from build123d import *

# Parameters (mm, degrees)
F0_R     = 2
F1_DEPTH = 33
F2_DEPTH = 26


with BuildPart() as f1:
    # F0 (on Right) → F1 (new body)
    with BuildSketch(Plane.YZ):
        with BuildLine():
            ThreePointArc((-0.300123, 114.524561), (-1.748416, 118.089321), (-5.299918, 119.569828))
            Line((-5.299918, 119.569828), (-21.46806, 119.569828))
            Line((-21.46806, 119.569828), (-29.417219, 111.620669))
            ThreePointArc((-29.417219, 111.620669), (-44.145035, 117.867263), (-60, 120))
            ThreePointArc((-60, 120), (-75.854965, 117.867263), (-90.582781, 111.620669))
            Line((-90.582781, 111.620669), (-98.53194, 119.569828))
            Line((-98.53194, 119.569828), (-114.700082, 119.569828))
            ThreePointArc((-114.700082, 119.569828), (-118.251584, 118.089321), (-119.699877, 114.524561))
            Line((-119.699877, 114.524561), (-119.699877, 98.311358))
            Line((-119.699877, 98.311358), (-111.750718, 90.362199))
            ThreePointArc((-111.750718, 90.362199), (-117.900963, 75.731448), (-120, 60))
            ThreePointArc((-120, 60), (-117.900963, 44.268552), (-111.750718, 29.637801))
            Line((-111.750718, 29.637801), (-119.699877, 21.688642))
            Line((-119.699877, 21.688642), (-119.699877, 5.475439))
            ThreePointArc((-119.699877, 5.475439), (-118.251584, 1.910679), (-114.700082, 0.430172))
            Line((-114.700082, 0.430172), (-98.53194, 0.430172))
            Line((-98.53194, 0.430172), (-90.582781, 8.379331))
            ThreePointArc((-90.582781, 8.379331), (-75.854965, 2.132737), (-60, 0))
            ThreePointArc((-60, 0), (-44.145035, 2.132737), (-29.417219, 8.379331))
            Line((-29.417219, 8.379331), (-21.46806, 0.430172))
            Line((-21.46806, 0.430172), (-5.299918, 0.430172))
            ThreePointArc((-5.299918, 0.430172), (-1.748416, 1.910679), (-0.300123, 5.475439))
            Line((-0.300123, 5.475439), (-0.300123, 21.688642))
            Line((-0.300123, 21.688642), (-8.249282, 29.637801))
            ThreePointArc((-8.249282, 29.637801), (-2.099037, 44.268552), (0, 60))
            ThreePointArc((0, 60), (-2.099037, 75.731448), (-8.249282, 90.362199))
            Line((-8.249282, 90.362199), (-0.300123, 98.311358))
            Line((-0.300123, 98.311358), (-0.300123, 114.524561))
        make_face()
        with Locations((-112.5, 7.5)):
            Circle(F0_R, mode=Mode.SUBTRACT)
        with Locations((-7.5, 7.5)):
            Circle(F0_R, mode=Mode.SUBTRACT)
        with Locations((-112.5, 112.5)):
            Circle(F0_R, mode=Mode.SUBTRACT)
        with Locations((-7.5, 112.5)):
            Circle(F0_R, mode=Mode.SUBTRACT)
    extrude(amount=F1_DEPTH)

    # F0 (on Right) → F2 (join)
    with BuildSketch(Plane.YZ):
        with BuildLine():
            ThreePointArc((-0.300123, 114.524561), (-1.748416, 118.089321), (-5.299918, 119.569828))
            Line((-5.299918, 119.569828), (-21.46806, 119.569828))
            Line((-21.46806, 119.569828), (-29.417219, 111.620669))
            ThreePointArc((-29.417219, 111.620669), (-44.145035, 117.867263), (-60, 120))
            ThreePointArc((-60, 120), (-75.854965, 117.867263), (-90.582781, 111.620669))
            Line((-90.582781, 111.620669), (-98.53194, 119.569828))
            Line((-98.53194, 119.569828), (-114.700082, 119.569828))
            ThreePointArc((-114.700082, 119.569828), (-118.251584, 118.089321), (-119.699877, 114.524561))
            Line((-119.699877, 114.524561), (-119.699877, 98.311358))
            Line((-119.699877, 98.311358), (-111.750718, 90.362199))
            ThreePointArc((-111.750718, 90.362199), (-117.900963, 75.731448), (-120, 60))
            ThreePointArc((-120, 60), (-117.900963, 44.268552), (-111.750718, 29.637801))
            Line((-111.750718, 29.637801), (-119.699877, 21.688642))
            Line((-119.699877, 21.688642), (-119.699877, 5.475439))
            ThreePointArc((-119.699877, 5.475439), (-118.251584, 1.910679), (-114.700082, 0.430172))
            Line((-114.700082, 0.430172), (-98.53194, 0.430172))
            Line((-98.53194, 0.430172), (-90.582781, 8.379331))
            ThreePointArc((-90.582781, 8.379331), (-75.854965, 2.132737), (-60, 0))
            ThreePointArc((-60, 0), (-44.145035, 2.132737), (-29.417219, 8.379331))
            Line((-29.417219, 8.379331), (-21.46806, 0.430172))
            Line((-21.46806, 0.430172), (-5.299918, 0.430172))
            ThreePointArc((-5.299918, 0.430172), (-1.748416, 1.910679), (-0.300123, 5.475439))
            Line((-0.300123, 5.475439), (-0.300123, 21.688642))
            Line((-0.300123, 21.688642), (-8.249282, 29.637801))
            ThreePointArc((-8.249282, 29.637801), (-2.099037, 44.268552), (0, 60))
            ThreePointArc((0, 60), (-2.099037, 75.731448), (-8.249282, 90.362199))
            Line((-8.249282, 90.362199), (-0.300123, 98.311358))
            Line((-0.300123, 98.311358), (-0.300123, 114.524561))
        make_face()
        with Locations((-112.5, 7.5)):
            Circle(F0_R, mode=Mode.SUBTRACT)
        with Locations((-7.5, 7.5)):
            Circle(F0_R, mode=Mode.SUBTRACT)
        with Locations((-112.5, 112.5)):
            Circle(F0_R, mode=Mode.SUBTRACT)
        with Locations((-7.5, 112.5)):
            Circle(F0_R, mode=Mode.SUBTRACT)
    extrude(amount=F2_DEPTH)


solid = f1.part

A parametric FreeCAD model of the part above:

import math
import FreeCAD as App
import Part
import Sketcher
from FreeCAD import Vector
Q = App.Units.Quantity

doc = App.newDocument("Part")
body = doc.addObject("PartDesign::Body", "Body")

# Sketch on YZ plane
sketch1 = body.newObject("Sketcher::SketchObject", "Sketch")
sketch1.AttachmentSupport = (doc.getObject("YZ_Plane"), [""])
sketch1.MapMode = "FlatFace"
sketch1.addGeometry([
    Part.ArcOfCircle(Part.Circle(Vector(-5.3, 114.6, 0), Vector(0, 0, 1), 5), math.radians(-1), math.radians(90)),  # 0
    Part.LineSegment(Vector(-5.3, 119.6, 0), Vector(-21.5, 119.6, 0)),  # 1
    Part.LineSegment(Vector(-21.5, 119.6, 0), Vector(-29.4, 111.6, 0)),  # 2
    Part.ArcOfCircle(Part.Circle(Vector(-60, 60, 0), Vector(0, 0, 1), 60), math.radians(59), math.radians(90)),  # 3
    Part.ArcOfCircle(Part.Circle(Vector(-60, 60, 0), Vector(0, 0, 1), 60), math.radians(90), math.radians(121)),  # 4
    Part.LineSegment(Vector(-90.6, 111.6, 0), Vector(-98.5, 119.6, 0)),  # 5
    Part.LineSegment(Vector(-98.5, 119.6, 0), Vector(-114.7, 119.6, 0)),  # 6
    Part.ArcOfCircle(Part.Circle(Vector(-114.7, 114.6, 0), Vector(0, 0, 1), 5), math.radians(90), math.radians(181)),  # 7
    Part.LineSegment(Vector(-119.7, 114.5, 0), Vector(-119.7, 98.3, 0)),  # 8
    Part.LineSegment(Vector(-119.7, 98.3, 0), Vector(-111.8, 90.4, 0)),  # 9
    Part.ArcOfCircle(Part.Circle(Vector(-60, 60, 0), Vector(0, 0, 1), 60), math.radians(150), math.radians(180)),  # 10
    Part.ArcOfCircle(Part.Circle(Vector(-60, 60, 0), Vector(0, 0, 1), 60), math.radians(-180), math.radians(-150)),  # 11
    Part.LineSegment(Vector(-111.8, 29.6, 0), Vector(-119.7, 21.7, 0)),  # 12
    Part.LineSegment(Vector(-119.7, 21.7, 0), Vector(-119.7, 5.5, 0)),  # 13
    Part.ArcOfCircle(Part.Circle(Vector(-114.7, 5.4, 0), Vector(0, 0, 1), 5), math.radians(179), math.radians(270)),  # 14
    Part.LineSegment(Vector(-114.7, 0.4, 0), Vector(-98.5, 0.4, 0)),  # 15
    Part.LineSegment(Vector(-98.5, 0.4, 0), Vector(-90.6, 8.4, 0)),  # 16
    Part.ArcOfCircle(Part.Circle(Vector(-60, 60, 0), Vector(0, 0, 1), 60), math.radians(-121), math.radians(-90)),  # 17
    Part.ArcOfCircle(Part.Circle(Vector(-60, 60, 0), Vector(0, 0, 1), 60), math.radians(-90), math.radians(-59)),  # 18
    Part.LineSegment(Vector(-29.4, 8.4, 0), Vector(-21.5, 0.4, 0)),  # 19
    Part.LineSegment(Vector(-21.5, 0.4, 0), Vector(-5.3, 0.4, 0)),  # 20
    Part.ArcOfCircle(Part.Circle(Vector(-5.3, 5.4, 0), Vector(0, 0, 1), 5), math.radians(-90), math.radians(1)),  # 21
    Part.LineSegment(Vector(-0.3, 5.5, 0), Vector(-0.3, 21.7, 0)),  # 22
    Part.LineSegment(Vector(-0.3, 21.7, 0), Vector(-8.2, 29.6, 0)),  # 23
    Part.ArcOfCircle(Part.Circle(Vector(-60, 60, 0), Vector(0, 0, 1), 60), math.radians(-30), math.radians(0)),  # 24
    Part.ArcOfCircle(Part.Circle(Vector(-60, 60, 0), Vector(0, 0, 1), 60), math.radians(0), math.radians(30)),  # 25
    Part.LineSegment(Vector(-8.2, 90.4, 0), Vector(-0.3, 98.3, 0)),  # 26
    Part.LineSegment(Vector(-0.3, 98.3, 0), Vector(-0.3, 114.5, 0)),  # 27
    Part.Circle(Vector(-112.5, 7.5, 0), Vector(0, 0, 1), 2),  # 28
    Part.Circle(Vector(-7.5, 7.5, 0), Vector(0, 0, 1), 2),  # 29
    Part.Circle(Vector(-112.5, 112.5, 0), Vector(0, 0, 1), 2),  # 30
    Part.Circle(Vector(-7.5, 112.5, 0), Vector(0, 0, 1), 2),  # 31
], False)
sketch1.addConstraint([
    Sketcher.Constraint("Tangent", 0, 2, 1, 1),
    Sketcher.Constraint("Coincident", 1, 2, 2, 1),
    Sketcher.Constraint("Coincident", 2, 2, 3, 1),
    Sketcher.Constraint("Tangent", 3, 2, 4, 1),
    Sketcher.Constraint("Coincident", 4, 2, 5, 1),
    Sketcher.Constraint("Coincident", 5, 2, 6, 1),
    Sketcher.Constraint("Tangent", 6, 2, 7, 1),
    Sketcher.Constraint("Coincident", 7, 2, 8, 1),
    Sketcher.Constraint("Coincident", 8, 2, 9, 1),
    Sketcher.Constraint("Coincident", 9, 2, 10, 1),
    Sketcher.Constraint("Tangent", 10, 2, 11, 1),
    Sketcher.Constraint("Coincident", 11, 2, 12, 1),
    Sketcher.Constraint("Coincident", 12, 2, 13, 1),
    Sketcher.Constraint("Coincident", 13, 2, 14, 1),
    Sketcher.Constraint("Tangent", 14, 2, 15, 1),
    Sketcher.Constraint("Coincident", 15, 2, 16, 1),
    Sketcher.Constraint("Coincident", 16, 2, 17, 1),
    Sketcher.Constraint("Tangent", 17, 2, 18, 1),
    Sketcher.Constraint("Coincident", 18, 2, 19, 1),
    Sketcher.Constraint("Coincident", 19, 2, 20, 1),
    Sketcher.Constraint("Tangent", 20, 2, 21, 1),
    Sketcher.Constraint("Coincident", 21, 2, 22, 1),
    Sketcher.Constraint("Coincident", 22, 2, 23, 1),
    Sketcher.Constraint("Coincident", 23, 2, 24, 1),
    Sketcher.Constraint("Tangent", 24, 2, 25, 1),
    Sketcher.Constraint("Coincident", 25, 2, 26, 1),
    Sketcher.Constraint("Coincident", 26, 2, 27, 1),
    Sketcher.Constraint("Coincident", 27, 2, 0, 1),
    Sketcher.Constraint("Horizontal", 1),
    Sketcher.Constraint("Horizontal", 6),
    Sketcher.Constraint("Vertical", 8),
    Sketcher.Constraint("Vertical", 13),
    Sketcher.Constraint("Horizontal", 15),
    Sketcher.Constraint("Horizontal", 20),
    Sketcher.Constraint("Vertical", 22),
    Sketcher.Constraint("Vertical", 27),
    Sketcher.Constraint("Coincident", 24, 3, 10, 3),
    Sketcher.Constraint("Equal", 3, 4),
    Sketcher.Constraint("Equal", 0, 7),
    Sketcher.Constraint("Equal", 10, 11),
    Sketcher.Constraint("Equal", 7, 14),
    Sketcher.Constraint("Equal", 4, 17),
    Sketcher.Constraint("Equal", 17, 18),
    Sketcher.Constraint("Equal", 14, 21),
    Sketcher.Constraint("Equal", 11, 24),
    Sketcher.Constraint("Equal", 24, 25),
    Sketcher.Constraint("Equal", 28, 29),
    Sketcher.Constraint("Equal", 29, 30),
    Sketcher.Constraint("Equal", 30, 31),
    Sketcher.Constraint("PointOnObject", 17, 2, -1),
    Sketcher.Constraint("PointOnObject", 24, 2, -2),
    Sketcher.Constraint("Perpendicular", 2, 5),
    Sketcher.Constraint("Parallel", 5, 9),
    Sketcher.Constraint("Perpendicular", 9, 12),
    Sketcher.Constraint("Parallel", 12, 16),
    Sketcher.Constraint("Perpendicular", 16, 19),
    Sketcher.Constraint("Parallel", 19, 23),
    Sketcher.Constraint("Perpendicular", 23, 26),
    Sketcher.Constraint("Horizontal", 0, 3, 7, 3),
    Sketcher.Constraint("Horizontal", 14, 3, 21, 3),
    Sketcher.Constraint("Horizontal", 28, 3, 29, 3),
    Sketcher.Constraint("Horizontal", 30, 3, 31, 3),
    Sketcher.Constraint("Horizontal", 2, 2, 4, 2),
    Sketcher.Constraint("Horizontal", 25, 3, 10, 2),
    Sketcher.Constraint("Horizontal", 16, 2, 18, 2),
    Sketcher.Constraint("Horizontal", 13, 2, 21, 2),
    Sketcher.Constraint("Horizontal", 12, 2, 22, 2),
    Sketcher.Constraint("Horizontal", 11, 2, 23, 2),
    Sketcher.Constraint("Horizontal", 10, 2, 24, 2),
    Sketcher.Constraint("Horizontal", 9, 2, 25, 2),
    Sketcher.Constraint("Horizontal", 8, 2, 26, 2),
    Sketcher.Constraint("Horizontal", 7, 2, 27, 2),
    Sketcher.Constraint("Vertical", 7, 3, 14, 3),
    Sketcher.Constraint("Vertical", 4, 3, 17, 3),
    Sketcher.Constraint("Vertical", 0, 3, 21, 3),
    Sketcher.Constraint("Vertical", 28, 3, 30, 3),
    Sketcher.Constraint("Vertical", 29, 3, 31, 3),
    Sketcher.Constraint("Vertical", 25, 3, 3, 2),
    Sketcher.Constraint("Vertical", 9, 2, 11, 2),
    Sketcher.Constraint("Vertical", 8, 2, 12, 2),
    Sketcher.Constraint("Vertical", 5, 2, 15, 2),
    Sketcher.Constraint("Vertical", 4, 2, 16, 2),
    Sketcher.Constraint("Vertical", 3, 2, 17, 2),
    Sketcher.Constraint("Equal", 1, 6),
    Sketcher.Constraint("Equal", 8, 13),
    Sketcher.Constraint("Equal", 5, 9),
    Sketcher.Constraint("Diameter", 28, Q("4 mm")),
    Sketcher.Constraint("Radius", 0, Q("5 mm")),
    Sketcher.Constraint("Radius", 10, Q("59.999999 mm")),
    Sketcher.Constraint("DistanceY", -1, 1, 10, 3, Q("59.999999 mm")),
    Sketcher.Constraint("DistanceX", 28, 3, -1, 1, Q("112.5 mm")),
    Sketcher.Constraint("DistanceY", -1, 1, 28, 3, Q("7.5 mm")),
    Sketcher.Constraint("DistanceX", 29, 3, -1, 1, Q("7.5 mm")),
    Sketcher.Constraint("DistanceY", -1, 1, 30, 3, Q("112.5 mm")),
    Sketcher.Constraint("Radius", 3, Q("59.999986 mm")),
    Sketcher.Constraint("DistanceX", 6, 2, 6, 1, Q("16.168142 mm")),
    Sketcher.Constraint("DistanceY", -1, 1, 9, 2, Q("90.362199 mm")),
    Sketcher.Constraint("DistanceX", 2, 2, 0, 3, Q("24.1173 mm")),
    Sketcher.Constraint("DistanceY", 8, 2, 8, 1, Q("16.213203 mm")),
])
pad1 = body.newObject("PartDesign::Pad", "Pad")
pad1.Profile = sketch1
pad1.Length = 33

# Sketch on YZ plane
sketch2 = body.newObject("Sketcher::SketchObject", "Sketch001")
sketch2.AttachmentSupport = (doc.getObject("YZ_Plane"), [""])
sketch2.MapMode = "FlatFace"
sketch2.addGeometry([
    Part.ArcOfCircle(Part.Circle(Vector(-5.3, 114.6, 0), Vector(0, 0, 1), 5), math.radians(-1), math.radians(90)),  # 0
    Part.LineSegment(Vector(-5.3, 119.6, 0), Vector(-21.5, 119.6, 0)),  # 1
    Part.LineSegment(Vector(-21.5, 119.6, 0), Vector(-29.4, 111.6, 0)),  # 2
    Part.ArcOfCircle(Part.Circle(Vector(-60, 60, 0), Vector(0, 0, 1), 60), math.radians(59), math.radians(90)),  # 3
    Part.ArcOfCircle(Part.Circle(Vector(-60, 60, 0), Vector(0, 0, 1), 60), math.radians(90), math.radians(121)),  # 4
    Part.LineSegment(Vector(-90.6, 111.6, 0), Vector(-98.5, 119.6, 0)),  # 5
    Part.LineSegment(Vector(-98.5, 119.6, 0), Vector(-114.7, 119.6, 0)),  # 6
    Part.ArcOfCircle(Part.Circle(Vector(-114.7, 114.6, 0), Vector(0, 0, 1), 5), math.radians(90), math.radians(181)),  # 7
    Part.LineSegment(Vector(-119.7, 114.5, 0), Vector(-119.7, 98.3, 0)),  # 8
    Part.LineSegment(Vector(-119.7, 98.3, 0), Vector(-111.8, 90.4, 0)),  # 9
    Part.ArcOfCircle(Part.Circle(Vector(-60, 60, 0), Vector(0, 0, 1), 60), math.radians(150), math.radians(180)),  # 10
    Part.ArcOfCircle(Part.Circle(Vector(-60, 60, 0), Vector(0, 0, 1), 60), math.radians(-180), math.radians(-150)),  # 11
    Part.LineSegment(Vector(-111.8, 29.6, 0), Vector(-119.7, 21.7, 0)),  # 12
    Part.LineSegment(Vector(-119.7, 21.7, 0), Vector(-119.7, 5.5, 0)),  # 13
    Part.ArcOfCircle(Part.Circle(Vector(-114.7, 5.4, 0), Vector(0, 0, 1), 5), math.radians(179), math.radians(270)),  # 14
    Part.LineSegment(Vector(-114.7, 0.4, 0), Vector(-98.5, 0.4, 0)),  # 15
    Part.LineSegment(Vector(-98.5, 0.4, 0), Vector(-90.6, 8.4, 0)),  # 16
    Part.ArcOfCircle(Part.Circle(Vector(-60, 60, 0), Vector(0, 0, 1), 60), math.radians(-121), math.radians(-90)),  # 17
    Part.ArcOfCircle(Part.Circle(Vector(-60, 60, 0), Vector(0, 0, 1), 60), math.radians(-90), math.radians(-59)),  # 18
    Part.LineSegment(Vector(-29.4, 8.4, 0), Vector(-21.5, 0.4, 0)),  # 19
    Part.LineSegment(Vector(-21.5, 0.4, 0), Vector(-5.3, 0.4, 0)),  # 20
    Part.ArcOfCircle(Part.Circle(Vector(-5.3, 5.4, 0), Vector(0, 0, 1), 5), math.radians(-90), math.radians(1)),  # 21
    Part.LineSegment(Vector(-0.3, 5.5, 0), Vector(-0.3, 21.7, 0)),  # 22
    Part.LineSegment(Vector(-0.3, 21.7, 0), Vector(-8.2, 29.6, 0)),  # 23
    Part.ArcOfCircle(Part.Circle(Vector(-60, 60, 0), Vector(0, 0, 1), 60), math.radians(-30), math.radians(0)),  # 24
    Part.ArcOfCircle(Part.Circle(Vector(-60, 60, 0), Vector(0, 0, 1), 60), math.radians(0), math.radians(30)),  # 25
    Part.LineSegment(Vector(-8.2, 90.4, 0), Vector(-0.3, 98.3, 0)),  # 26
    Part.LineSegment(Vector(-0.3, 98.3, 0), Vector(-0.3, 114.5, 0)),  # 27
    Part.Circle(Vector(-112.5, 7.5, 0), Vector(0, 0, 1), 2),  # 28
    Part.Circle(Vector(-7.5, 7.5, 0), Vector(0, 0, 1), 2),  # 29
    Part.Circle(Vector(-112.5, 112.5, 0), Vector(0, 0, 1), 2),  # 30
    Part.Circle(Vector(-7.5, 112.5, 0), Vector(0, 0, 1), 2),  # 31
], False)
sketch2.addConstraint([
    Sketcher.Constraint("Tangent", 0, 2, 1, 1),
    Sketcher.Constraint("Coincident", 1, 2, 2, 1),
    Sketcher.Constraint("Coincident", 2, 2, 3, 1),
    Sketcher.Constraint("Tangent", 3, 2, 4, 1),
    Sketcher.Constraint("Coincident", 4, 2, 5, 1),
    Sketcher.Constraint("Coincident", 5, 2, 6, 1),
    Sketcher.Constraint("Tangent", 6, 2, 7, 1),
    Sketcher.Constraint("Coincident", 7, 2, 8, 1),
    Sketcher.Constraint("Coincident", 8, 2, 9, 1),
    Sketcher.Constraint("Coincident", 9, 2, 10, 1),
    Sketcher.Constraint("Tangent", 10, 2, 11, 1),
    Sketcher.Constraint("Coincident", 11, 2, 12, 1),
    Sketcher.Constraint("Coincident", 12, 2, 13, 1),
    Sketcher.Constraint("Coincident", 13, 2, 14, 1),
    Sketcher.Constraint("Tangent", 14, 2, 15, 1),
    Sketcher.Constraint("Coincident", 15, 2, 16, 1),
    Sketcher.Constraint("Coincident", 16, 2, 17, 1),
    Sketcher.Constraint("Tangent", 17, 2, 18, 1),
    Sketcher.Constraint("Coincident", 18, 2, 19, 1),
    Sketcher.Constraint("Coincident", 19, 2, 20, 1),
    Sketcher.Constraint("Tangent", 20, 2, 21, 1),
    Sketcher.Constraint("Coincident", 21, 2, 22, 1),
    Sketcher.Constraint("Coincident", 22, 2, 23, 1),
    Sketcher.Constraint("Coincident", 23, 2, 24, 1),
    Sketcher.Constraint("Tangent", 24, 2, 25, 1),
    Sketcher.Constraint("Coincident", 25, 2, 26, 1),
    Sketcher.Constraint("Coincident", 26, 2, 27, 1),
    Sketcher.Constraint("Coincident", 27, 2, 0, 1),
    Sketcher.Constraint("Horizontal", 1),
    Sketcher.Constraint("Horizontal", 6),
    Sketcher.Constraint("Vertical", 8),
    Sketcher.Constraint("Vertical", 13),
    Sketcher.Constraint("Horizontal", 15),
    Sketcher.Constraint("Horizontal", 20),
    Sketcher.Constraint("Vertical", 22),
    Sketcher.Constraint("Vertical", 27),
    Sketcher.Constraint("Coincident", 24, 3, 10, 3),
    Sketcher.Constraint("Equal", 3, 4),
    Sketcher.Constraint("Equal", 0, 7),
    Sketcher.Constraint("Equal", 10, 11),
    Sketcher.Constraint("Equal", 7, 14),
    Sketcher.Constraint("Equal", 4, 17),
    Sketcher.Constraint("Equal", 17, 18),
    Sketcher.Constraint("Equal", 14, 21),
    Sketcher.Constraint("Equal", 11, 24),
    Sketcher.Constraint("Equal", 24, 25),
    Sketcher.Constraint("Equal", 28, 29),
    Sketcher.Constraint("Equal", 29, 30),
    Sketcher.Constraint("Equal", 30, 31),
    Sketcher.Constraint("PointOnObject", 17, 2, -1),
    Sketcher.Constraint("PointOnObject", 24, 2, -2),
    Sketcher.Constraint("Perpendicular", 2, 5),
    Sketcher.Constraint("Parallel", 5, 9),
    Sketcher.Constraint("Perpendicular", 9, 12),
    Sketcher.Constraint("Parallel", 12, 16),
    Sketcher.Constraint("Perpendicular", 16, 19),
    Sketcher.Constraint("Parallel", 19, 23),
    Sketcher.Constraint("Perpendicular", 23, 26),
    Sketcher.Constraint("Horizontal", 0, 3, 7, 3),
    Sketcher.Constraint("Horizontal", 14, 3, 21, 3),
    Sketcher.Constraint("Horizontal", 28, 3, 29, 3),
    Sketcher.Constraint("Horizontal", 30, 3, 31, 3),
    Sketcher.Constraint("Horizontal", 2, 2, 4, 2),
    Sketcher.Constraint("Horizontal", 25, 3, 10, 2),
    Sketcher.Constraint("Horizontal", 16, 2, 18, 2),
    Sketcher.Constraint("Horizontal", 13, 2, 21, 2),
    Sketcher.Constraint("Horizontal", 12, 2, 22, 2),
    Sketcher.Constraint("Horizontal", 11, 2, 23, 2),
    Sketcher.Constraint("Horizontal", 10, 2, 24, 2),
    Sketcher.Constraint("Horizontal", 9, 2, 25, 2),
    Sketcher.Constraint("Horizontal", 8, 2, 26, 2),
    Sketcher.Constraint("Horizontal", 7, 2, 27, 2),
    Sketcher.Constraint("Vertical", 7, 3, 14, 3),
    Sketcher.Constraint("Vertical", 4, 3, 17, 3),
    Sketcher.Constraint("Vertical", 0, 3, 21, 3),
    Sketcher.Constraint("Vertical", 28, 3, 30, 3),
    Sketcher.Constraint("Vertical", 29, 3, 31, 3),
    Sketcher.Constraint("Vertical", 25, 3, 3, 2),
    Sketcher.Constraint("Vertical", 9, 2, 11, 2),
    Sketcher.Constraint("Vertical", 8, 2, 12, 2),
    Sketcher.Constraint("Vertical", 5, 2, 15, 2),
    Sketcher.Constraint("Vertical", 4, 2, 16, 2),
    Sketcher.Constraint("Vertical", 3, 2, 17, 2),
    Sketcher.Constraint("Equal", 1, 6),
    Sketcher.Constraint("Equal", 8, 13),
    Sketcher.Constraint("Equal", 5, 9),
    Sketcher.Constraint("Diameter", 28, Q("4 mm")),
    Sketcher.Constraint("Radius", 0, Q("5 mm")),
    Sketcher.Constraint("Radius", 10, Q("59.999999 mm")),
    Sketcher.Constraint("DistanceY", -1, 1, 10, 3, Q("59.999999 mm")),
    Sketcher.Constraint("DistanceX", 28, 3, -1, 1, Q("112.5 mm")),
    Sketcher.Constraint("DistanceY", -1, 1, 28, 3, Q("7.5 mm")),
    Sketcher.Constraint("DistanceX", 29, 3, -1, 1, Q("7.5 mm")),
    Sketcher.Constraint("DistanceY", -1, 1, 30, 3, Q("112.5 mm")),
    Sketcher.Constraint("Radius", 3, Q("59.999986 mm")),
    Sketcher.Constraint("DistanceX", 6, 2, 6, 1, Q("16.168142 mm")),
    Sketcher.Constraint("DistanceY", -1, 1, 9, 2, Q("90.362199 mm")),
    Sketcher.Constraint("DistanceX", 2, 2, 0, 3, Q("24.1173 mm")),
    Sketcher.Constraint("DistanceY", 8, 2, 8, 1, Q("16.213203 mm")),
])
pad2 = body.newObject("PartDesign::Pad", "Pad001")
pad2.Profile = sketch2
pad2.Length = 26

doc.recompute()
